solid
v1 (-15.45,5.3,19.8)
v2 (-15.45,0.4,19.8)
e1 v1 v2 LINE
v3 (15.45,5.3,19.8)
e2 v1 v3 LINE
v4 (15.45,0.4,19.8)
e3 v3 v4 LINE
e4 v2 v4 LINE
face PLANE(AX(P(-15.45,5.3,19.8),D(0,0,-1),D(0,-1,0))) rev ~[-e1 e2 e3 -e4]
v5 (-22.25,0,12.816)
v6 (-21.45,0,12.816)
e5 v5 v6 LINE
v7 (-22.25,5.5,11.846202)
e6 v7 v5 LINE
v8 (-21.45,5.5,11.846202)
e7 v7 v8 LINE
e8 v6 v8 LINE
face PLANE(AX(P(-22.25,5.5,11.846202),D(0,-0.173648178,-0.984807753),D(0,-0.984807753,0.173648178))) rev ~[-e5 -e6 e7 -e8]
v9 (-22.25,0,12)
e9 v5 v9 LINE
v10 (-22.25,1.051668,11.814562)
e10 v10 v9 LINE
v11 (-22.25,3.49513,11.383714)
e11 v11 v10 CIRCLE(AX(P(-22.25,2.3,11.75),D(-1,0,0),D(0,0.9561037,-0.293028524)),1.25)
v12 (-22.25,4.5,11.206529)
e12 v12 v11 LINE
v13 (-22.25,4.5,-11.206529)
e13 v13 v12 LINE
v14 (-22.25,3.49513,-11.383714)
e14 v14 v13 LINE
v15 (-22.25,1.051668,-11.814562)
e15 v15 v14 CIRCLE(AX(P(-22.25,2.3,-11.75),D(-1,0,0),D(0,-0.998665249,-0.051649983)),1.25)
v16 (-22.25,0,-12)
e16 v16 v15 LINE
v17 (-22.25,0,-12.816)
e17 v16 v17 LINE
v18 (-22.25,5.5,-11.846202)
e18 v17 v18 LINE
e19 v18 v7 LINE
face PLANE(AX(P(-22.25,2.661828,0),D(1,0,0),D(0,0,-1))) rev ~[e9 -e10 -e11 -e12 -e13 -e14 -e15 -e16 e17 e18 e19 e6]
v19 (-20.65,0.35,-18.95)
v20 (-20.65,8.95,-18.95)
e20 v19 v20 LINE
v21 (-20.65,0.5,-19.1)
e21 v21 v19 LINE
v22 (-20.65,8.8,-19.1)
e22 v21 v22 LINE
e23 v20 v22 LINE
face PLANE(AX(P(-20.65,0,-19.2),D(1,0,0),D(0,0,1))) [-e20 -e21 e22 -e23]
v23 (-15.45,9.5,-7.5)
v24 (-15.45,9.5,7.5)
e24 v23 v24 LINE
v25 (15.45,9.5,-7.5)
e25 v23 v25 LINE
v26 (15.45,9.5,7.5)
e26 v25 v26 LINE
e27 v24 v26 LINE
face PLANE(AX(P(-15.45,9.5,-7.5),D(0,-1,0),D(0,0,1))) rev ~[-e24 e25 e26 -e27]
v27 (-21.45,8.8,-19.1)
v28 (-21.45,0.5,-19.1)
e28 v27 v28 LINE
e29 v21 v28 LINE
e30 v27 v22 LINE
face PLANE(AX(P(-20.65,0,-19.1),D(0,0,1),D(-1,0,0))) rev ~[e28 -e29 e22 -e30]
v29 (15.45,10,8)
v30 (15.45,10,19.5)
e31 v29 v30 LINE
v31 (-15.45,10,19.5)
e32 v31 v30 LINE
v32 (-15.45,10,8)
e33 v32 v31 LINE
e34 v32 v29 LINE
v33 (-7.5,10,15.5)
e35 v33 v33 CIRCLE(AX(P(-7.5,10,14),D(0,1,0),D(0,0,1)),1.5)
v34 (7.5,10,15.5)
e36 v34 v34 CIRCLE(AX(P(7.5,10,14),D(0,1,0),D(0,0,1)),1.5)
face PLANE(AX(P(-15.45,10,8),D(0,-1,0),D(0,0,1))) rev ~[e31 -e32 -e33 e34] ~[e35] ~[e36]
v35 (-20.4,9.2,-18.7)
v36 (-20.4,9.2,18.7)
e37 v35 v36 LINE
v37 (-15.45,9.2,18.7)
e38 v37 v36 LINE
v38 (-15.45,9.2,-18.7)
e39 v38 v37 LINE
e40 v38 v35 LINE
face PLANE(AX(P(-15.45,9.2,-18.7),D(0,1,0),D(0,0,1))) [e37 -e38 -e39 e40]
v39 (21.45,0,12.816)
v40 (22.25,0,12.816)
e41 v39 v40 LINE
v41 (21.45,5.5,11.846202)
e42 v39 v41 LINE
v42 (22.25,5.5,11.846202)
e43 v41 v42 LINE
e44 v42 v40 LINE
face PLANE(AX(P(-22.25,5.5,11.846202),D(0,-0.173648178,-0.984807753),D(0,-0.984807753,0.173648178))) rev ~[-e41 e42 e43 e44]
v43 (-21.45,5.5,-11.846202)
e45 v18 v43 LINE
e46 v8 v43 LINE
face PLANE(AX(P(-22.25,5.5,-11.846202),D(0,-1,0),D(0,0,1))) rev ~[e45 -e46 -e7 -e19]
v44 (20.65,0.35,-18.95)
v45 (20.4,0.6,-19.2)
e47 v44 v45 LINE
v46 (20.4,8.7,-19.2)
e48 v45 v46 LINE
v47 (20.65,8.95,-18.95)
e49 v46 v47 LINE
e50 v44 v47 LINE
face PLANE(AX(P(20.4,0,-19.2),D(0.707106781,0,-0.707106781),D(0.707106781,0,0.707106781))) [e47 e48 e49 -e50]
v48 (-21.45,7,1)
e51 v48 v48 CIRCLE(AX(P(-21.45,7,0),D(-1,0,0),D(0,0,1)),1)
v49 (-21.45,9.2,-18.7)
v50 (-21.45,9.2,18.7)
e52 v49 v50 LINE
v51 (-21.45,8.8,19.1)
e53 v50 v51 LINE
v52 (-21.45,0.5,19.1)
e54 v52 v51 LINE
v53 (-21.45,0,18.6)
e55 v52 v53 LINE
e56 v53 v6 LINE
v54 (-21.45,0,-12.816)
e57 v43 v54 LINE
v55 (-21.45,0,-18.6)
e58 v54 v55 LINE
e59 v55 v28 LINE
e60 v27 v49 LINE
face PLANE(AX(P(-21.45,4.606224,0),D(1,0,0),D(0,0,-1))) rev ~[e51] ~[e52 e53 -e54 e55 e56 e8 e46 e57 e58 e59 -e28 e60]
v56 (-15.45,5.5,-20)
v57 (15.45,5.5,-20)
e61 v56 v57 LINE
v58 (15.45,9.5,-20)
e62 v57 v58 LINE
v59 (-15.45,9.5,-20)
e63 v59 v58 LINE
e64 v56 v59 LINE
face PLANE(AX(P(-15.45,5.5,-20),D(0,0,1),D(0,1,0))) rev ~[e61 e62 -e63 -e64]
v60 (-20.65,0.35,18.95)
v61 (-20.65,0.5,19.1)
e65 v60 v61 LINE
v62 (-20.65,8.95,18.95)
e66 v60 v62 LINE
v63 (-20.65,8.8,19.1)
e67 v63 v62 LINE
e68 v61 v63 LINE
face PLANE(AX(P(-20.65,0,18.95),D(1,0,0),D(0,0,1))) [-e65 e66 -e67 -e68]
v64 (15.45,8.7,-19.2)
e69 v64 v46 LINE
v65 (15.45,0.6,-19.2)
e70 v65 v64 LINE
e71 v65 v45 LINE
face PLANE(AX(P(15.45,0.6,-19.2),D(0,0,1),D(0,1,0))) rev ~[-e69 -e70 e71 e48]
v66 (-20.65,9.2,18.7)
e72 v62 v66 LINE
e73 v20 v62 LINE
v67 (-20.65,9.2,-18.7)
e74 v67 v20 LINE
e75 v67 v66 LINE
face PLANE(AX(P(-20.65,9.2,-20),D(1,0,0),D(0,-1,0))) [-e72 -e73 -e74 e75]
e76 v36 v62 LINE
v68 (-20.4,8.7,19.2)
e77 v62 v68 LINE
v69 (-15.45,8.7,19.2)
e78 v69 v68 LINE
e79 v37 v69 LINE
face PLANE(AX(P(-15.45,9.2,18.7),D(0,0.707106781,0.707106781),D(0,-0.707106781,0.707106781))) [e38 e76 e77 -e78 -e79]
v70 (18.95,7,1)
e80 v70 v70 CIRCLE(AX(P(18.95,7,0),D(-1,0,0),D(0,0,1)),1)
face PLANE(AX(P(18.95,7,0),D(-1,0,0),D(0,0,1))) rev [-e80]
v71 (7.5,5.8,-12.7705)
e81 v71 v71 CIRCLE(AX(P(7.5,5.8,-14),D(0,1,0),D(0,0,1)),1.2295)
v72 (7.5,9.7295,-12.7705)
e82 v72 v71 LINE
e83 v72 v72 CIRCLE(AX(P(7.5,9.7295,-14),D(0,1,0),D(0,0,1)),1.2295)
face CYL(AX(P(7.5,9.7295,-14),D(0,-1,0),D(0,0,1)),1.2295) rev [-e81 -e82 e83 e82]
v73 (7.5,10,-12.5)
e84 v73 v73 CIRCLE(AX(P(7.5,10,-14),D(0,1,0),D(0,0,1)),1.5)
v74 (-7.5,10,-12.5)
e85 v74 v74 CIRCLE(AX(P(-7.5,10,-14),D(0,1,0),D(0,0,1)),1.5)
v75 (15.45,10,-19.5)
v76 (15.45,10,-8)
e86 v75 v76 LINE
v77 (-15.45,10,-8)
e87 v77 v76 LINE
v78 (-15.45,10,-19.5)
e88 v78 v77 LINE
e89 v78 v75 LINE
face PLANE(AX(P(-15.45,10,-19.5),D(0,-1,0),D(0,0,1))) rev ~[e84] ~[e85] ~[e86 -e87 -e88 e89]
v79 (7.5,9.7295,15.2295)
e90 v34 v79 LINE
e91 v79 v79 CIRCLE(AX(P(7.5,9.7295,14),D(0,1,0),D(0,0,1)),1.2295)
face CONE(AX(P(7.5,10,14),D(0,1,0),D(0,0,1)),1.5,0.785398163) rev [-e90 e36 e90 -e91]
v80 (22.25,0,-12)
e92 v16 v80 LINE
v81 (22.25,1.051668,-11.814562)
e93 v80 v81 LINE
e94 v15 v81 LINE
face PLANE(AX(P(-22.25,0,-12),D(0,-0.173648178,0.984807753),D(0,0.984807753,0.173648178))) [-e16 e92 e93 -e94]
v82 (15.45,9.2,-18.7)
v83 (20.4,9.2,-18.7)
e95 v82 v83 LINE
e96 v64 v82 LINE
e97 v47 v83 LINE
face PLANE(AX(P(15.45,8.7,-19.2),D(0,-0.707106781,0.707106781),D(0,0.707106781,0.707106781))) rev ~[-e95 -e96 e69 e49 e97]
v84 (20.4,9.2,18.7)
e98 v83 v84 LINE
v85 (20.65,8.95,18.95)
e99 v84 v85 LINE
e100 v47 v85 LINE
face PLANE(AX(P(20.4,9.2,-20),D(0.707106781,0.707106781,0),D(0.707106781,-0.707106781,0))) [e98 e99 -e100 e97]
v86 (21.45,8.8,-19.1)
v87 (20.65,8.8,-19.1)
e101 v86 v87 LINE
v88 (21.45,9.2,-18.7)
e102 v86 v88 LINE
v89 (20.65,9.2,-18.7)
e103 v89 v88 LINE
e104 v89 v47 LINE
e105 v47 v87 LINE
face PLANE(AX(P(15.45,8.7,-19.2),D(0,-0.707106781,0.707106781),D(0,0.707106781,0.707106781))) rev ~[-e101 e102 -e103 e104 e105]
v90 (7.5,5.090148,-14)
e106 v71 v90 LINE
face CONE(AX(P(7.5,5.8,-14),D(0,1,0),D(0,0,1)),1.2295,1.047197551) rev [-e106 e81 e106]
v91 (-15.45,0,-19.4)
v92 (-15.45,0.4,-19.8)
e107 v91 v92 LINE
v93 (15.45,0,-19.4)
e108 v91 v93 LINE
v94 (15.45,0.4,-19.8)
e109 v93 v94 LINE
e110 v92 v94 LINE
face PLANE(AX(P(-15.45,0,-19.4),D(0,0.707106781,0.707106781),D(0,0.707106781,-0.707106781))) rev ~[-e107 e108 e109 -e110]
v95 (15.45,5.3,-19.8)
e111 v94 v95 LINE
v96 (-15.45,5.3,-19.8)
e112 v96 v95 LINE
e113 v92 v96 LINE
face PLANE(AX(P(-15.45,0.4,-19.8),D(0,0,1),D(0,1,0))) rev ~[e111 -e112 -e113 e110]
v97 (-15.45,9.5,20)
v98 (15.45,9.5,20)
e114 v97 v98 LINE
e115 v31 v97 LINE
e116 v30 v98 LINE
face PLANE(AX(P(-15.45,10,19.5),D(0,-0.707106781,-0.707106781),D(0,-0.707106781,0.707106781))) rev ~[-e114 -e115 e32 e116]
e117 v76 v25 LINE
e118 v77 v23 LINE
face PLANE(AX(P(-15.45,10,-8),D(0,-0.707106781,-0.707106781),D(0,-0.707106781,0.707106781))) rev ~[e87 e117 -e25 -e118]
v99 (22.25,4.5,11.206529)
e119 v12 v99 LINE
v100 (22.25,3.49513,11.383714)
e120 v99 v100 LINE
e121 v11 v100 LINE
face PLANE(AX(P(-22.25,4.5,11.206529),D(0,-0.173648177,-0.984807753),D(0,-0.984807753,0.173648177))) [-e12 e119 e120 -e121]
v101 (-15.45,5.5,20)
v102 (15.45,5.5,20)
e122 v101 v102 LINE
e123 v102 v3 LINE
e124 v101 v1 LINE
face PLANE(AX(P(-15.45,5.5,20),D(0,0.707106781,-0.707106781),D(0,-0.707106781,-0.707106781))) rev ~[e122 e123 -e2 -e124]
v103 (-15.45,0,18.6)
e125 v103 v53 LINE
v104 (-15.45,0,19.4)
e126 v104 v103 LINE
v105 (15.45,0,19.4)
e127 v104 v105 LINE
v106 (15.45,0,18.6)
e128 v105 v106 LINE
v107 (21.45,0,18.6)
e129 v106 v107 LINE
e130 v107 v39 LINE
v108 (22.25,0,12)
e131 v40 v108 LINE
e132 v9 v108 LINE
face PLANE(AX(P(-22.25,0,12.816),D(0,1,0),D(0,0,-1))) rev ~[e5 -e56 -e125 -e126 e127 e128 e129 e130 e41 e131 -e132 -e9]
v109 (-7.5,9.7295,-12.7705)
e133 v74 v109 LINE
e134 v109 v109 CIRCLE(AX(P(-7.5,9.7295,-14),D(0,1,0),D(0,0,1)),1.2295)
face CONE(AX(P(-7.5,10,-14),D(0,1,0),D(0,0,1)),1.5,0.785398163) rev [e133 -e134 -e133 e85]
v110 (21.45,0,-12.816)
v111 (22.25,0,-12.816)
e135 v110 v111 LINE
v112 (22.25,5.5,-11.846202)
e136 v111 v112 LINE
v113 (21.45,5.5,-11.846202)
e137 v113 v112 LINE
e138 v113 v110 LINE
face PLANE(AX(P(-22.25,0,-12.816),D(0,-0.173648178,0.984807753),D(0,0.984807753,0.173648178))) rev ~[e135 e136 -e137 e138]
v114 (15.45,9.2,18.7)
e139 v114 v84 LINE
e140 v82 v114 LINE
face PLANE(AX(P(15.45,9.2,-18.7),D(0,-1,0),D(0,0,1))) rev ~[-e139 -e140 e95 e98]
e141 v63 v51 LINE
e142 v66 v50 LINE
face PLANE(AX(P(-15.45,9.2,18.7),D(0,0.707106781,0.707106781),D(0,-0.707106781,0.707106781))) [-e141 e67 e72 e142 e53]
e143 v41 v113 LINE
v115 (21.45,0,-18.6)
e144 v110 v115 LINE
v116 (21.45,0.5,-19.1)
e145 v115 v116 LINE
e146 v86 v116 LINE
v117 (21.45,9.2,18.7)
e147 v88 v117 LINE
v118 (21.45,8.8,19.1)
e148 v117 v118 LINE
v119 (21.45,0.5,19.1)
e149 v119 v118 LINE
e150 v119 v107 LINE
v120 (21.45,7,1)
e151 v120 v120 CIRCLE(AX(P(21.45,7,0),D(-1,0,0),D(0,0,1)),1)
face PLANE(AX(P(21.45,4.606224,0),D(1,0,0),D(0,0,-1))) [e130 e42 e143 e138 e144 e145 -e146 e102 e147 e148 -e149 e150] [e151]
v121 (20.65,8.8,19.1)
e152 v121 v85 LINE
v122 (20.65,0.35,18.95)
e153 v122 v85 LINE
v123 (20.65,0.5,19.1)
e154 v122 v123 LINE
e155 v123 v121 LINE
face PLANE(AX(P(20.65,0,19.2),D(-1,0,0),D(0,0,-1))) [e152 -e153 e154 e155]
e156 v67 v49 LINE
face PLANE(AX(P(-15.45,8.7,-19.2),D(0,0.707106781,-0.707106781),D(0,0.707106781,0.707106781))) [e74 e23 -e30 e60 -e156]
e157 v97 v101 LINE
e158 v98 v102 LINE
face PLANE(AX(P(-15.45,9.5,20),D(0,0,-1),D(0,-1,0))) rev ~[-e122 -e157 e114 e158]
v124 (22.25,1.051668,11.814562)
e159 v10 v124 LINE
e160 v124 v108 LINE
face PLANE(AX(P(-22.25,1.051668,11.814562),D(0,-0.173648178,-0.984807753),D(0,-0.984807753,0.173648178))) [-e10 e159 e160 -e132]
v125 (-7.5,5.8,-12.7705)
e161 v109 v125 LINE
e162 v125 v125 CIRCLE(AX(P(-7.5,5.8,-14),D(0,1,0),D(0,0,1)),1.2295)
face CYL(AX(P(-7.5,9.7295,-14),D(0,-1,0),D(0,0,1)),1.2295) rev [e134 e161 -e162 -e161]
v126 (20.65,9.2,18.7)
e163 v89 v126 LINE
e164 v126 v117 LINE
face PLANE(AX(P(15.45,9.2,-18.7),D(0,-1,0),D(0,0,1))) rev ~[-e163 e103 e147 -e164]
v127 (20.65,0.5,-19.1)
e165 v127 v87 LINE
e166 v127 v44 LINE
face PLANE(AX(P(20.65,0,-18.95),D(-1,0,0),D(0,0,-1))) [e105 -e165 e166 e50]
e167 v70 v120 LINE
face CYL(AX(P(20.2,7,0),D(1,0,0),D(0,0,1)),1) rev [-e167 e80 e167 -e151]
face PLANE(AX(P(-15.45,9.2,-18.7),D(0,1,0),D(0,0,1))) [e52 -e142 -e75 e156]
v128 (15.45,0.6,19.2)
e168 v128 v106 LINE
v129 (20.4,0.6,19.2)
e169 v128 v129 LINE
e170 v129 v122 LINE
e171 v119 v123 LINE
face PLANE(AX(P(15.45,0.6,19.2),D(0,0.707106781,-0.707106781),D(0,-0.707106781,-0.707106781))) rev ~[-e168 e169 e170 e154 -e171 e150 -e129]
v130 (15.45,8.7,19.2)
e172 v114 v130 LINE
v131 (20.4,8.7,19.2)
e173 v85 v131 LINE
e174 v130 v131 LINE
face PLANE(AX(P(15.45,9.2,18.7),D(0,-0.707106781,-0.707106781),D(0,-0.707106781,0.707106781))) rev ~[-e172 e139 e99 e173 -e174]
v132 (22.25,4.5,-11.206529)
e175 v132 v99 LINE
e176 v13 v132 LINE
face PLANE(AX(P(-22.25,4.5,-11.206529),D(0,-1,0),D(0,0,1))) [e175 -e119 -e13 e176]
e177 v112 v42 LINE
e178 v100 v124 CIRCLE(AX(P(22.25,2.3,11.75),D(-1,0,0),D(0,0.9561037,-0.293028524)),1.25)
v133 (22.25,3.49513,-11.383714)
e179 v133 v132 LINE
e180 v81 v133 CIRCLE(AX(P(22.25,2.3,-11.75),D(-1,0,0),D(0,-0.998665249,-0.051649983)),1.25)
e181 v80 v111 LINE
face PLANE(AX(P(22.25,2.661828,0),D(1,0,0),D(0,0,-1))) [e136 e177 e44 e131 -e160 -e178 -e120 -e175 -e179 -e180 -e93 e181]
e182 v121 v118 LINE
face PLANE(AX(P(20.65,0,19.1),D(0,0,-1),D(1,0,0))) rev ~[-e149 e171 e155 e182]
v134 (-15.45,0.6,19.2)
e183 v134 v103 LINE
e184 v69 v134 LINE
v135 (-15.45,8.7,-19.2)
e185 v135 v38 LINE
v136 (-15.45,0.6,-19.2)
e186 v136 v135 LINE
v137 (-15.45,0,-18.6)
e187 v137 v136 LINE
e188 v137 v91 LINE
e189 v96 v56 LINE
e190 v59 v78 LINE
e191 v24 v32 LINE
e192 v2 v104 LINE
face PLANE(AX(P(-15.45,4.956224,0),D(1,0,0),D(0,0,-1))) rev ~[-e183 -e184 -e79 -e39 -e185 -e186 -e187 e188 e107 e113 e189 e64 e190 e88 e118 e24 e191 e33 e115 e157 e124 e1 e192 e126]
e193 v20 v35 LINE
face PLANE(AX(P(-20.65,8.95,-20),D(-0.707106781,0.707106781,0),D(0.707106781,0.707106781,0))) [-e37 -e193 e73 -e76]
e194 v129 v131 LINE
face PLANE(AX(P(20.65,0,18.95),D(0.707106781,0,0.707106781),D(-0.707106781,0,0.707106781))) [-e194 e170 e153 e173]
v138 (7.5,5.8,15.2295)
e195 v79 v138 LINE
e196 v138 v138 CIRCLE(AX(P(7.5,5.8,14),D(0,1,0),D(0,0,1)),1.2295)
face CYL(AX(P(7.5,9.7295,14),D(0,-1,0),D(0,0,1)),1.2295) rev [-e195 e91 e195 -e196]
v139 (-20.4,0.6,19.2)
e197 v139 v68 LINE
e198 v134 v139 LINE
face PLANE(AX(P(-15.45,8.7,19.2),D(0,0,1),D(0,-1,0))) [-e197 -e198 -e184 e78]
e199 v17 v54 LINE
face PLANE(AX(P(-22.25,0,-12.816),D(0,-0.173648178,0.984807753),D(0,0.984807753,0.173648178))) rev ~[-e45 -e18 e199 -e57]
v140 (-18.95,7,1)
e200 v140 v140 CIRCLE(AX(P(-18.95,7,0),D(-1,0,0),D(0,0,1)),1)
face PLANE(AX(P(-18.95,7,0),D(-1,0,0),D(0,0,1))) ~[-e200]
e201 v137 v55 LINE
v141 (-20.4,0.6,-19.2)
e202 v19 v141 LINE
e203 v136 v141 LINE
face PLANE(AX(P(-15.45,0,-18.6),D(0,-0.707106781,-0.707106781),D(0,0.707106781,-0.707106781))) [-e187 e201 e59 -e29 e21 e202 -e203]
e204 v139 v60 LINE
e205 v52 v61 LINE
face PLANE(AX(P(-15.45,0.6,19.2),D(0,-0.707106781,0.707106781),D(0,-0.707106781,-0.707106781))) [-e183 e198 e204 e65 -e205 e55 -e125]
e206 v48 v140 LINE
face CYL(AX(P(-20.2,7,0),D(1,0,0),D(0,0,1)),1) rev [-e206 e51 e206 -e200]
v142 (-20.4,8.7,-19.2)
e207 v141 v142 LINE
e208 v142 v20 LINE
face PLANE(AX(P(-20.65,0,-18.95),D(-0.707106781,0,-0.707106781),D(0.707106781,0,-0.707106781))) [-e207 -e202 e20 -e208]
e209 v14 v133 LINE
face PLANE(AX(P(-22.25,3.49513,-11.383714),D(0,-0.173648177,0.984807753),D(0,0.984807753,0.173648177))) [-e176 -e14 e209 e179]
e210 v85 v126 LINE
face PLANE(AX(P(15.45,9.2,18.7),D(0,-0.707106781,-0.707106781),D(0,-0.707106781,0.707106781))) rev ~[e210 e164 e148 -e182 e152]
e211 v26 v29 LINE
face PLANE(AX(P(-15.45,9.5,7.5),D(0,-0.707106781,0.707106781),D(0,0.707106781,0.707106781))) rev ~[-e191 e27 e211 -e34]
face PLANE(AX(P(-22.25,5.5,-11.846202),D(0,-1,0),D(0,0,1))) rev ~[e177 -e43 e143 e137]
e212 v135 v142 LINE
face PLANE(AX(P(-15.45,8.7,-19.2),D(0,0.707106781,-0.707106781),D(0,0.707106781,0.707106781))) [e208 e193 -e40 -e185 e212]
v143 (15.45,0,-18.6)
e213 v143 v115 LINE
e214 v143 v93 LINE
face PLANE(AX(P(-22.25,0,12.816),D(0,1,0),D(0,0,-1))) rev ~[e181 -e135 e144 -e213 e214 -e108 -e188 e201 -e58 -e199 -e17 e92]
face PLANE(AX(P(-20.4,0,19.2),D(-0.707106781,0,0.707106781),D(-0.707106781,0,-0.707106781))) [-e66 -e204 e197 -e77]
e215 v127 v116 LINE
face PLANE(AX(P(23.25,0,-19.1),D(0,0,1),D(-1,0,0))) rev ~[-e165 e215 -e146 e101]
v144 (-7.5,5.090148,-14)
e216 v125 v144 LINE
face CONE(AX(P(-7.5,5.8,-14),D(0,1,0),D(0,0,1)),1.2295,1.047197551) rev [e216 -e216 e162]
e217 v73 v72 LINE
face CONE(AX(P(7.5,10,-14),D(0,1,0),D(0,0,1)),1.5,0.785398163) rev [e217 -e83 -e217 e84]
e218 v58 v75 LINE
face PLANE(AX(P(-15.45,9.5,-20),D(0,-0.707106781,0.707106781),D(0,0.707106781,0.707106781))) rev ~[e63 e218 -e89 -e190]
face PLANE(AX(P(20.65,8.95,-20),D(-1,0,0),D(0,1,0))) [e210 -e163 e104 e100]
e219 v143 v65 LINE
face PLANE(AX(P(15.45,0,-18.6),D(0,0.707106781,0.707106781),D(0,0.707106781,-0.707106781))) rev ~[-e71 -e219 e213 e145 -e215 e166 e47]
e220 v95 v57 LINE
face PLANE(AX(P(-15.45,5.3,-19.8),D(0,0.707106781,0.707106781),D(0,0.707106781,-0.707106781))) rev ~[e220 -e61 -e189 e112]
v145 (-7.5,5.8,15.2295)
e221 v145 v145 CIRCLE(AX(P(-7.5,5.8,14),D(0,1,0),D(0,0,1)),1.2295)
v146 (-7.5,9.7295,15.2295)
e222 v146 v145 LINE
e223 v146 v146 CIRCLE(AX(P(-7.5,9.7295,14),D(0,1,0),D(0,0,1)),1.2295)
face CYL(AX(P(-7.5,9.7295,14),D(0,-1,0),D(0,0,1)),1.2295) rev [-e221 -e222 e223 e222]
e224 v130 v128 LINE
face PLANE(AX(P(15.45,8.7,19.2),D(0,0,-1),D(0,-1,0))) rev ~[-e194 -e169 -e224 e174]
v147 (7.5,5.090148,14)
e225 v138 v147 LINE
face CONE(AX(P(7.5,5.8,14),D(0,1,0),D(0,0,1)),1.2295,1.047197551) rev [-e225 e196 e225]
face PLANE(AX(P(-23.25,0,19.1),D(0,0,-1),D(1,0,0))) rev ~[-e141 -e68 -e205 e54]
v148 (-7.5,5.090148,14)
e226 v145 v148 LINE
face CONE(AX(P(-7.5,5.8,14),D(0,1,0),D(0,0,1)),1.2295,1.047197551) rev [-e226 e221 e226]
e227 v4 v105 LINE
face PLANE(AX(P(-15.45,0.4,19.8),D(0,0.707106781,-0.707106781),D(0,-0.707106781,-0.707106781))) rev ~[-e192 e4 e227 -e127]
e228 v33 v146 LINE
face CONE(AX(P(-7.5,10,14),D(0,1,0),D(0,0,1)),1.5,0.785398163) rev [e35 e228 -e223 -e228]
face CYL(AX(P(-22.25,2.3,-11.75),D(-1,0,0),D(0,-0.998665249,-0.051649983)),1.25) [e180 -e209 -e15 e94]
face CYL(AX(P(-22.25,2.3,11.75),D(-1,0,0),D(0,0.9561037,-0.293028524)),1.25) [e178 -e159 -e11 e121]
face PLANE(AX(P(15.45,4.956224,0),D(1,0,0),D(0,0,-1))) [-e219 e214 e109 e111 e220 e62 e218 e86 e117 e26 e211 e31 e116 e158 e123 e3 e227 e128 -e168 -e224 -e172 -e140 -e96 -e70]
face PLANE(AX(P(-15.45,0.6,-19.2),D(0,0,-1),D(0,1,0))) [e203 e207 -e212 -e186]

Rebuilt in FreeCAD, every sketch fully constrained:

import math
import FreeCAD as App
import Part
import Sketcher

V = App.Vector
Q = App.Units.Quantity


def add_polygon(sketch, points):
    """Adds a closed chain of lines whose ends are joined by coincident constraints."""
    first, n = sketch.GeometryCount, len(points)
    for a, b in zip(points, points[1:] + points[:1]):
        sketch.addGeometry(Part.LineSegment(App.Vector(*a, 0), App.Vector(*b, 0)), False)
    for i in range(n):
        sketch.addConstraint(Sketcher.Constraint("Coincident", first + i, 2, first + (i + 1) % n, 1))

doc = App.newDocument("Part")
params = doc.addObject("Spreadsheet::Sheet", "Params")
for row, (alias, value) in enumerate([
    ("sketch1_width", "4 mm"),
    ("sketch1_height", "15 mm"),
    ("sketch1_width2", "4.9 mm"),
    ("sketch1_height2", "38.8 mm"),
    ("sketch1_height3", "11.5 mm"),
    ("pad1_length", "15.45 mm"),
    ("pad1_length2", "15.45 mm"),
    ("sketch2_width", "8.1 mm"),
    ("sketch2_height", "37.2 mm"),
    ("sketch2_height2", "37.4 mm"),
    ("pad2_length", "6 mm"),
    ("sketch3_width", "8.1 mm"),
    ("sketch3_height", "37.2 mm"),
    ("sketch3_height2", "37.4 mm"),
    ("pad3_length", "6 mm"),
    ("pad4_length", "22.25 mm"),
    ("pad4_length2", "22.25 mm"),
    ("sketch5_height", "24 mm"),
    ("sketch5_radius", "1.25 mm"),
    ("sketch6_width", "1.5 mm"),
    ("groove_angle", "360 deg"),
    ("sketch7_width", "1.5 mm"),
    ("groove2_angle", "360 deg"),
    ("sketch8_width", "1.5 mm"),
    ("groove3_angle", "360 deg"),
    ("sketch9_width", "1.5 mm"),
    ("groove4_angle", "360 deg"),
    ("sketch10_height", "44 mm"),
    ("sketch10_width", "48.5 mm"),
    ("sketch10_width2", "2.6 mm"),
    ("sketch10_width3", "41.3 mm"),
    ("sketch10_height2", "38.2 mm"),
    ("pocket2_length", "11 mm"),
    ("sketch11_width", "0.25 mm"),
    ("sketch12_width", "0.25 mm"),
    ("sketch13_width", "0.25 mm"),
    ("pocket5_length", "10 mm"),
    ("sketch14_width", "0.25 mm"),
    ("pocket6_length", "10 mm"),
    ("sketch15_width", "0.25 mm"),
    ("pocket7_length", "10 mm"),
    ("sketch16_width", "0.25 mm"),
    ("pocket8_length", "10 mm"),
    ("sketch17_height", "1 mm"),
    ("sketch17_width", "2.5 mm"),
    ("groove5_angle", "360 deg"),
    ("sketch18_height", "1 mm"),
    ("sketch18_width", "2.5 mm"),
    ("groove6_angle", "360 deg"),
], start=1):
    params.set(f"A{row}", alias)
    params.set(f"B{row}", "=" + value)
    params.setAlias(f"B{row}", alias)

body = doc.addObject("PartDesign::Body", "Body")

sketch1 = body.newObject("Sketcher::SketchObject", "Sketch")
sketch1.AttachmentSupport = (doc.getObject("YZ_Plane"), [""])
sketch1.MapMode = "FlatFace"
add_polygon(sketch1, [(9.5, 20), (5.5, 20), (5.3, 19.8), (0.4, 19.8), (0, 19.4), (0, -19.4), (0.4, -19.8), (5.3, -19.8), (5.5, -20), (9.5, -20), (10, -19.5), (10, -8), (9.5, -7.5), (9.5, 7.5), (10, 8), (10, 19.5)])
sketch1.addConstraint([
    Sketcher.Constraint("Horizontal", 0),
    Sketcher.Constraint("Horizontal", 2),
    Sketcher.Constraint("Vertical", 4),
    Sketcher.Constraint("Horizontal", 6),
    Sketcher.Constraint("Horizontal", 8),
    Sketcher.Constraint("Vertical", 10),
    Sketcher.Constraint("Vertical", 12),
    Sketcher.Constraint("Vertical", 14),
    Sketcher.Constraint("Symmetric", 3, 2, 4, 2, -1, 1),
    Sketcher.Constraint("Symmetric", 2, 2, 5, 2, -1),
    Sketcher.Constraint("Symmetric", 0, 2, 7, 2, -1),
    Sketcher.Constraint("Symmetric", 10, 2, 13, 2, -1),
    Sketcher.Constraint("Parallel", 1, 3),
    Sketcher.Constraint("Perpendicular", 3, 5),
    Sketcher.Constraint("Parallel", 5, 7),
    Sketcher.Constraint("Perpendicular", 7, 9),
    Sketcher.Constraint("Perpendicular", 9, 11),
    Sketcher.Constraint("Perpendicular", 11, 13),
    Sketcher.Constraint("Perpendicular", 13, 15),
    Sketcher.Constraint("Vertical", 8, 2, 11, 2),
    Sketcher.Constraint("Vertical", 12, 2, 15, 2),
    Sketcher.Constraint("DistanceX", 0, 2, 0, 1, 4.0),
    Sketcher.Constraint("DistanceY", 12, 1, 12, 2, 15.0),
    Sketcher.Constraint("DistanceX", 2, 2, 2, 1, 4.9),
    Sketcher.Constraint("DistanceY", 4, 2, 4, 1, 38.8),
    Sketcher.Constraint("DistanceY", 10, 1, 10, 2, 11.5),
    Sketcher.Constraint("DistanceY", -1, 1, 0, 2, 20.0),
    Sketcher.Constraint("DistanceX", -1, 1, 1, 2, 5.3),
])
sketch1.setExpression("Constraints[37]", "Params.sketch1_width")
sketch1.setExpression("Constraints[38]", "Params.sketch1_height")
sketch1.setExpression("Constraints[39]", "Params.sketch1_width2")
sketch1.setExpression("Constraints[40]", "Params.sketch1_height2")
sketch1.setExpression("Constraints[41]", "Params.sketch1_height3")
pad1 = body.newObject("PartDesign::Pad", "Pad")
pad1.Profile = sketch1
pad1.Type = "TwoLengths"
pad1.setExpression("Length", "Params.pad1_length")
pad1.setExpression("Length2", "Params.pad1_length2")

sketch2 = body.newObject("Sketcher::SketchObject", "Sketch001")
sketch2.AttachmentSupport = (doc.getObject("YZ_Plane"), [""])
sketch2.MapMode = "FlatFace"
sketch2.AttachmentOffset = App.Placement(V(0, 0, -15.45), App.Rotation())
add_polygon(sketch2, [(8.7, 19.2), (0.6, 19.2), (0, 18.6), (0, -18.6), (0.6, -19.2), (8.7, -19.2), (9.2, -18.7), (9.2, 18.7)])
sketch2.addConstraint([
    Sketcher.Constraint("Horizontal", 0),
    Sketcher.Constraint("Vertical", 2),
    Sketcher.Constraint("Horizontal", 4),
    Sketcher.Constraint("Vertical", 6),
    Sketcher.Constraint("Symmetric", 1, 2, 2, 2, -1, 1),
    Sketcher.Constraint("Symmetric", 0, 2, 3, 2, -1),
    Sketcher.Constraint("Perpendicular", 1, 3),
    Sketcher.Constraint("Perpendicular", 3, 5),
    Sketcher.Constraint("Perpendicular", 5, 7),
    Sketcher.Constraint("Vertical", 4, 2, 7, 2),
    Sketcher.Constraint("DistanceX", 0, 2, 0, 1, 8.1),
    Sketcher.Constraint("DistanceY", 2, 2, 2, 1, 37.2),
    Sketcher.Constraint("DistanceY", 6, 1, 6, 2, 37.4),
    Sketcher.Constraint("DistanceX", -1, 1, 0, 2, 0.6),
])
sketch2.setExpression("Constraints[18]", "Params.sketch2_width")
sketch2.setExpression("Constraints[19]", "Params.sketch2_height")
sketch2.setExpression("Constraints[20]", "Params.sketch2_height2")
pad2 = body.newObject("PartDesign::Pad", "Pad001")
pad2.Profile = sketch2
pad2.setExpression("Length", "Params.pad2_length")
pad2.Reversed = True

sketch3 = body.newObject("Sketcher::SketchObject", "Sketch002")
sketch3.AttachmentSupport = (doc.getObject("YZ_Plane"), [""])
sketch3.MapMode = "FlatFace"
sketch3.AttachmentOffset = App.Placement(V(0, 0, 15.45), App.Rotation())
add_polygon(sketch3, [(8.7, 19.2), (0.6, 19.2), (0, 18.6), (0, -18.6), (0.6, -19.2), (8.7, -19.2), (9.2, -18.7), (9.2, 18.7)])
sketch3.addConstraint([
    Sketcher.Constraint("Horizontal", 0),
    Sketcher.Constraint("Vertical", 2),
    Sketcher.Constraint("Horizontal", 4),
    Sketcher.Constraint("Vertical", 6),
    Sketcher.Constraint("Symmetric", 1, 2, 2, 2, -1, 1),
    Sketcher.Constraint("Symmetric", 0, 2, 3, 2, -1),
    Sketcher.Constraint("Perpendicular", 1, 3),
    Sketcher.Constraint("Perpendicular", 3, 5),
    Sketcher.Constraint("Perpendicular", 5, 7),
    Sketcher.Constraint("Vertical", 4, 2, 7, 2),
    Sketcher.Constraint("DistanceX", 0, 2, 0, 1, 8.1),
    Sketcher.Constraint("DistanceY", 2, 2, 2, 1, 37.2),
    Sketcher.Constraint("DistanceY", 6, 1, 6, 2, 37.4),
    Sketcher.Constraint("DistanceX", -1, 1, 0, 2, 0.6),
])
sketch3.setExpression("Constraints[18]", "Params.sketch3_width")
sketch3.setExpression("Constraints[19]", "Params.sketch3_height")
sketch3.setExpression("Constraints[20]", "Params.sketch3_height2")
pad3 = body.newObject("PartDesign::Pad", "Pad002")
pad3.Profile = sketch3
pad3.setExpression("Length", "Params.pad3_length")

sketch4 = body.newObject("Sketcher::SketchObject", "Sketch003")
sketch4.AttachmentSupport = (doc.getObject("YZ_Plane"), [""])
sketch4.MapMode = "FlatFace"
add_polygon(sketch4, [(0, 13), (0, -13), (6, -12), (6, 12)])
sketch4.addConstraint([
    Sketcher.Constraint("Vertical", 0),
    Sketcher.Constraint("Vertical", 2),
    Sketcher.Constraint("Symmetric", 0, 2, 3, 2, -1, 1),
    Sketcher.Constraint("Equal", 1, 3),
    Sketcher.Constraint("Angle", 1, Q("10 deg")),
    Sketcher.Constraint("DistanceX", -1, 1, 1, 2, 5.5),
    Sketcher.Constraint("DistanceY", 0, 2, 0, 1, 25.632),
])
pad4 = body.newObject("PartDesign::Pad", "Pad003")
pad4.Profile = sketch4
pad4.Type = "TwoLengths"
pad4.setExpression("Length", "Params.pad4_length")
pad4.setExpression("Length2", "Params.pad4_length2")

sketch5 = body.newObject("Sketcher::SketchObject", "Sketch004")
sketch5.AttachmentSupport = (doc.getObject("YZ_Plane"), [""])
sketch5.MapMode = "FlatFace"
sketch5.addGeometry([
    Part.LineSegment(V(0, 12, 0), V(0, -12, 0)),
    Part.LineSegment(V(0, -12, 0), V(1.1, -11.8, 0)),
    Part.ArcOfCircle(Part.Circle(V(2.3, -11.8, 0), V(0, 0, 1), 1.2), math.radians(17), math.radians(183)),
    Part.LineSegment(V(3.5, -11.4, 0), V(4.5, -11.2, 0)),
    Part.LineSegment(V(4.5, -11.2, 0), V(4.5, 11.2, 0)),
    Part.LineSegment(V(4.5, 11.2, 0), V(3.5, 11.4, 0)),
    Part.ArcOfCircle(Part.Circle(V(2.3, 11.8, 0), V(0, 0, 1), 1.2), math.radians(177), math.radians(343)),
    Part.LineSegment(V(1.1, 11.8, 0), V(0, 12, 0)),
], False)
sketch5.addConstraint([
    Sketcher.Constraint("Coincident", 0, 2, 1, 1),
    Sketcher.Constraint("Coincident", 1, 2, 2, 2),
    Sketcher.Constraint("Coincident", 2, 1, 3, 1),
    Sketcher.Constraint("Coincident", 3, 2, 4, 1),
    Sketcher.Constraint("Coincident", 4, 2, 5, 1),
    Sketcher.Constraint("Coincident", 5, 2, 6, 2),
    Sketcher.Constraint("Coincident", 6, 1, 7, 1),
    Sketcher.Constraint("Coincident", 7, 2, 0, 1),
    Sketcher.Constraint("Vertical", 0),
    Sketcher.Constraint("Vertical", 4),
    Sketcher.Constraint("Equal", 2, 6),
    Sketcher.Constraint("Symmetric", 0, 2, 7, 2, -1, 1),
    Sketcher.Constraint("Symmetric", 2, 3, 6, 3, -1),
    Sketcher.Constraint("Parallel", 1, 3),
    Sketcher.Constraint("Parallel", 5, 7),
    Sketcher.Constraint("Vertical", 2, 1, 5, 2),
    Sketcher.Constraint("Vertical", 1, 2, 6, 1),
    Sketcher.Constraint("DistanceY", 0, 2, 0, 1, 24.0),
    Sketcher.Constraint("Angle", 1, Q("10 deg")),
    Sketcher.Constraint("Radius", 2, 1.25),
    Sketcher.Constraint("DistanceX", -1, 1, 2, 3, 2.3),
    Sketcher.Constraint("DistanceX", -1, 1, 3, 2, 4.5),
    Sketcher.Constraint("DistanceY", 2, 3, 6, 3, 23.5),
    Sketcher.Constraint("DistanceY", 4, 1, 4, 2, 22.413057),
])
sketch5.setExpression("Constraints[17]", "Params.sketch5_height")
sketch5.setExpression("Constraints[19]", "Params.sketch5_radius")
pocket1 = body.newObject("PartDesign::Pocket", "Pocket")
pocket1.Profile = sketch5
pocket1.Type = "ThroughAll"
pocket1.Midplane = True

sketch6 = body.newObject("Sketcher::SketchObject", "Sketch005")
sketch6.AttachmentSupport = (doc.getObject("XY_Plane"), [""])
sketch6.MapMode = "FlatFace"
sketch6.AttachmentOffset = App.Placement(V(0, 0, 14), App.Rotation())
add_polygon(sketch6, [(9, 10), (7.5, 10), (7.5, 5.09), (8.73, 5.8), (8.73, 9.73)])
sketch6.addGeometry(Part.LineSegment(V(7.5, 5.09, 0), V(7.5, 10, 0)), True)
sketch6.addConstraint([
    Sketcher.Constraint("Horizontal", 0),
    Sketcher.Constraint("Vertical", 1),
    Sketcher.Constraint("Vertical", 3),
    Sketcher.Constraint("Vertical", 5),
    Sketcher.Constraint("Coincident", 5, 1, 1, 2),
    Sketcher.Constraint("Horizontal", 4, 2, 5, 2),
    Sketcher.Constraint("Angle", 2, Q("30 deg")),
    Sketcher.Constraint("Angle", 4, Q("45 deg")),
    Sketcher.Constraint("DistanceX", 0, 2, 0, 1, 1.5),
    Sketcher.Constraint("DistanceY", -1, 1, 0, 2, 10.0),
    Sketcher.Constraint("DistanceX", -1, 1, 4, 2, 9.0),
    Sketcher.Constraint("DistanceY", -1, 1, 2, 2, 5.8),
    Sketcher.Constraint("DistanceY", 3, 1, 3, 2, 3.9295),
])
sketch6.setExpression("Constraints[13]", "Params.sketch6_width")
groove = body.newObject("PartDesign::Groove", "Groove")
groove.Profile = sketch6
groove.ReferenceAxis = (sketch6, ["Axis0"])
groove.setExpression("Angle", "Params.groove_angle")

sketch7 = body.newObject("Sketcher::SketchObject", "Sketch006")
sketch7.AttachmentSupport = (doc.getObject("XY_Plane"), [""])
sketch7.MapMode = "FlatFace"
sketch7.AttachmentOffset = App.Placement(V(0, 0, -14), App.Rotation())
add_polygon(sketch7, [(-6, 10), (-7.5, 10), (-7.5, 5.09), (-6.27, 5.8), (-6.27, 9.73)])
sketch7.addGeometry(Part.LineSegment(V(-7.5, 5.09, 0), V(-7.5, 10, 0)), True)
sketch7.addConstraint([
    Sketcher.Constraint("Horizontal", 0),
    Sketcher.Constraint("Vertical", 1),
    Sketcher.Constraint("Vertical", 3),
    Sketcher.Constraint("Vertical", 5),
    Sketcher.Constraint("Coincident", 5, 1, 1, 2),
    Sketcher.Constraint("Horizontal", 4, 2, 5, 2),
    Sketcher.Constraint("Angle", 2, Q("30 deg")),
    Sketcher.Constraint("Angle", 4, Q("45 deg")),
    Sketcher.Constraint("DistanceX", 0, 2, 0, 1, 1.5),
    Sketcher.Constraint("DistanceY", -1, 1, 0, 2, 10.0),
    Sketcher.Constraint("DistanceX", 4, 2, -1, 1, 6.0),
    Sketcher.Constraint("DistanceY", -1, 1, 2, 2, 5.8),
    Sketcher.Constraint("DistanceY", 3, 1, 3, 2, 3.9295),
])
sketch7.setExpression("Constraints[13]", "Params.sketch7_width")
groove2 = body.newObject("PartDesign::Groove", "Groove001")
groove2.Profile = sketch7
groove2.ReferenceAxis = (sketch7, ["Axis0"])
groove2.setExpression("Angle", "Params.groove2_angle")

sketch8 = body.newObject("Sketcher::SketchObject", "Sketch007")
sketch8.AttachmentSupport = (doc.getObject("XY_Plane"), [""])
sketch8.MapMode = "FlatFace"
sketch8.AttachmentOffset = App.Placement(V(0, 0, 14), App.Rotation())
add_polygon(sketch8, [(-6, 10), (-7.5, 10), (-7.5, 5.09), (-6.27, 5.8), (-6.27, 9.73)])
sketch8.addGeometry(Part.LineSegment(V(-7.5, 5.09, 0), V(-7.5, 10, 0)), True)
sketch8.addConstraint([
    Sketcher.Constraint("Horizontal", 0),
    Sketcher.Constraint("Vertical", 1),
    Sketcher.Constraint("Vertical", 3),
    Sketcher.Constraint("Vertical", 5),
    Sketcher.Constraint("Coincident", 5, 1, 1, 2),
    Sketcher.Constraint("Horizontal", 4, 2, 5, 2),
    Sketcher.Constraint("Angle", 2, Q("30 deg")),
    Sketcher.Constraint("Angle", 4, Q("45 deg")),
    Sketcher.Constraint("DistanceX", 0, 2, 0, 1, 1.5),
    Sketcher.Constraint("DistanceY", -1, 1, 0, 2, 10.0),
    Sketcher.Constraint("DistanceX", 4, 2, -1, 1, 6.0),
    Sketcher.Constraint("DistanceY", -1, 1, 2, 2, 5.8),
    Sketcher.Constraint("DistanceY", 3, 1, 3, 2, 3.9295),
])
sketch8.setExpression("Constraints[13]", "Params.sketch8_width")
groove3 = body.newObject("PartDesign::Groove", "Groove002")
groove3.Profile = sketch8
groove3.ReferenceAxis = (sketch8, ["Axis0"])
groove3.setExpression("Angle", "Params.groove3_angle")

sketch9 = body.newObject("Sketcher::SketchObject", "Sketch008")
sketch9.AttachmentSupport = (doc.getObject("XY_Plane"), [""])
sketch9.MapMode = "FlatFace"
sketch9.AttachmentOffset = App.Placement(V(0, 0, -14), App.Rotation())
add_polygon(sketch9, [(9, 10), (7.5, 10), (7.5, 5.09), (8.73, 5.8), (8.73, 9.73)])
sketch9.addGeometry(Part.LineSegment(V(7.5, 5.09, 0), V(7.5, 10, 0)), True)
sketch9.addConstraint([
    Sketcher.Constraint("Horizontal", 0),
    Sketcher.Constraint("Vertical", 1),
    Sketcher.Constraint("Vertical", 3),
    Sketcher.Constraint("Vertical", 5),
    Sketcher.Constraint("Coincident", 5, 1, 1, 2),
    Sketcher.Constraint("Horizontal", 4, 2, 5, 2),
    Sketcher.Constraint("Angle", 2, Q("30 deg")),
    Sketcher.Constraint("Angle", 4, Q("45 deg")),
    Sketcher.Constraint("DistanceX", 0, 2, 0, 1, 1.5),
    Sketcher.Constraint("DistanceY", -1, 1, 0, 2, 10.0),
    Sketcher.Constraint("DistanceX", -1, 1, 4, 2, 9.0),
    Sketcher.Constraint("DistanceY", -1, 1, 2, 2, 5.8),
    Sketcher.Constraint("DistanceY", 3, 1, 3, 2, 3.9295),
])
sketch9.setExpression("Constraints[13]", "Params.sketch9_width")
groove4 = body.newObject("PartDesign::Groove", "Groove003")
groove4.Profile = sketch9
groove4.ReferenceAxis = (sketch9, ["Axis0"])
groove4.setExpression("Angle", "Params.groove4_angle")

sketch10 = body.newObject("Sketcher::SketchObject", "Sketch009")
sketch10.AttachmentSupport = (doc.getObject("XZ_Plane"), [""])
sketch10.MapMode = "FlatFace"
add_polygon(sketch10, [(-24.2, -22), (-24.2, 22), (24.2, 22), (24.2, -22)])
add_polygon(sketch10, [(-23.2, 19.1), (-23.2, -19.1), (-20.6, -19.1), (-20.6, -21), (20.6, -21), (20.6, -19.1), (23.2, -19.1), (23.2, 19.1), (20.6, 19.1), (20.6, 21), (-20.6, 21), (-20.6, 19.1)])
sketch10.addConstraint([
    Sketcher.Constraint("Vertical", 0),
    Sketcher.Constraint("Horizontal", 1),
    Sketcher.Constraint("Vertical", 2),
    Sketcher.Constraint("Horizontal", 3),
    Sketcher.Constraint("Vertical", 4),
    Sketcher.Constraint("Horizontal", 5),
    Sketcher.Constraint("Vertical", 6),
    Sketcher.Constraint("Horizontal", 7),
    Sketcher.Constraint("Vertical", 8),
    Sketcher.Constraint("Horizontal", 9),
    Sketcher.Constraint("Vertical", 10),
    Sketcher.Constraint("Horizontal", 11),
    Sketcher.Constraint("Vertical", 12),
    Sketcher.Constraint("Horizontal", 13),
    Sketcher.Constraint("Vertical", 14),
    Sketcher.Constraint("Horizontal", 15),
    Sketcher.Constraint("Symmetric", 0, 2, 2, 2, -1, 1),
    Sketcher.Constraint("Symmetric", 4, 2, 10, 2, -1, 1),
    Sketcher.Constraint("Symmetric", 6, 2, 12, 2, -1, 1),
    Sketcher.Constraint("Symmetric", 8, 2, 14, 2, -1, 1),
    Sketcher.Constraint("Symmetric", 5, 2, 8, 2, -2),
    Sketcher.Constraint("DistanceY", 0, 1, 0, 2, 44.0),
    Sketcher.Constraint("DistanceX", 1, 1, 1, 2, 48.5),
    Sketcher.Constraint("DistanceX", 5, 1, 5, 2, 2.6),
    Sketcher.Constraint("DistanceX", 7, 1, 7, 2, 41.3),
    Sketcher.Constraint("DistanceY", 4, 2, 4, 1, 38.2),
    Sketcher.Constraint("DistanceY", 6, 2, 6, 1, 1.9),
])
sketch10.setExpression("Constraints[37]", "Params.sketch10_height")
sketch10.setExpression("Constraints[38]", "Params.sketch10_width")
sketch10.setExpression("Constraints[39]", "Params.sketch10_width2")
sketch10.setExpression("Constraints[40]", "Params.sketch10_width3")
sketch10.setExpression("Constraints[41]", "Params.sketch10_height2")
pocket2 = body.newObject("PartDesign::Pocket", "Pocket001")
pocket2.Profile = sketch10
pocket2.setExpression("Length", "Params.pocket2_length")

sketch11 = body.newObject("Sketcher::SketchObject", "Sketch010")
sketch11.AttachmentSupport = (doc.getObject("XY_Plane"), [""])
sketch11.MapMode = "FlatFace"
add_polygon(sketch11, [(-20.65, 9.2), (-20.65, 8.95), (-20.4, 9.2)])
sketch11.addConstraint([
    Sketcher.Constraint("Vertical", 0),
    Sketcher.Constraint("Horizontal", 2),
    Sketcher.Constraint("Equal", 2, 0),
    Sketcher.Constraint("DistanceX", 2, 2, 2, 1, 0.25),
    Sketcher.Constraint("DistanceX", 1, 2, -1, 1, 20.4),
    Sketcher.Constraint("DistanceY", -1, 1, 1, 2, 9.2),
])
sketch11.setExpression("Constraints[6]", "Params.sketch11_width")
pocket3 = body.newObject("PartDesign::Pocket", "Pocket002")
pocket3.Profile = sketch11
pocket3.Type = "ThroughAll"
pocket3.Midplane = True

sketch12 = body.newObject("Sketcher::SketchObject", "Sketch011")
sketch12.AttachmentSupport = (doc.getObject("XY_Plane"), [""])
sketch12.MapMode = "FlatFace"
add_polygon(sketch12, [(20.4, 9.2), (20.65, 8.95), (20.65, 9.2)])
sketch12.addConstraint([
    Sketcher.Constraint("Vertical", 1),
    Sketcher.Constraint("Horizontal", 2),
    Sketcher.Constraint("Equal", 2, 1),
    Sketcher.Constraint("DistanceX", 2, 2, 2, 1, 0.25),
    Sketcher.Constraint("DistanceY", -1, 1, 1, 2, 9.2),
    Sketcher.Constraint("DistanceX", -1, 1, 2, 2, 20.4),
])
sketch12.setExpression("Constraints[6]", "Params.sketch12_width")
pocket4 = body.newObject("PartDesign::Pocket", "Pocket003")
pocket4.Profile = sketch12
pocket4.Type = "ThroughAll"
pocket4.Midplane = True

sketch13 = body.newObject("Sketcher::SketchObject", "Sketch012")
sketch13.AttachmentSupport = (doc.getObject("XZ_Plane"), [""])
sketch13.MapMode = "FlatFace"
add_polygon(sketch13, [(-20.65, -19.2), (-20.65, -18.95), (-20.4, -19.2)])
sketch13.addConstraint([
    Sketcher.Constraint("Vertical", 0),
    Sketcher.Constraint("Horizontal", 2),
    Sketcher.Constraint("Equal", 2, 0),
    Sketcher.Constraint("DistanceX", 2, 2, 2, 1, 0.25),
    Sketcher.Constraint("DistanceX", 1, 2, -1, 1, 20.4),
    Sketcher.Constraint("DistanceY", 1, 2, -1, 1, 19.2),
])
sketch13.setExpression("Constraints[6]", "Params.sketch13_width")
pocket5 = body.newObject("PartDesign::Pocket", "Pocket004")
pocket5.Profile = sketch13
pocket5.setExpression("Length", "Params.pocket5_length")

sketch14 = body.newObject("Sketcher::SketchObject", "Sketch013")
sketch14.AttachmentSupport = (doc.getObject("XZ_Plane"), [""])
sketch14.MapMode = "FlatFace"
add_polygon(sketch14, [(-20.65, 19.2), (-20.4, 19.2), (-20.65, 18.95)])
sketch14.addConstraint([
    Sketcher.Constraint("Horizontal", 0),
    Sketcher.Constraint("Vertical", 2),
    Sketcher.Constraint("Equal", 0, 2),
    Sketcher.Constraint("DistanceX", 0, 1, 0, 2, 0.25),
    Sketcher.Constraint("DistanceX", 0, 2, -1, 1, 20.4),
    Sketcher.Constraint("DistanceY", -1, 1, 0, 2, 19.2),
])
sketch14.setExpression("Constraints[6]", "Params.sketch14_width")
pocket6 = body.newObject("PartDesign::Pocket", "Pocket005")
pocket6.Profile = sketch14
pocket6.setExpression("Length", "Params.pocket6_length")

sketch15 = body.newObject("Sketcher::SketchObject", "Sketch014")
sketch15.AttachmentSupport = (doc.getObject("XZ_Plane"), [""])
sketch15.MapMode = "FlatFace"
add_polygon(sketch15, [(20.4, -19.2), (20.65, -18.95), (20.65, -19.2)])
sketch15.addConstraint([
    Sketcher.Constraint("Vertical", 1),
    Sketcher.Constraint("Horizontal", 2),
    Sketcher.Constraint("Equal", 2, 1),
    Sketcher.Constraint("DistanceX", 2, 2, 2, 1, 0.25),
    Sketcher.Constraint("DistanceY", 1, 2, -1, 1, 19.2),
    Sketcher.Constraint("DistanceX", -1, 1, 2, 2, 20.4),
])
sketch15.setExpression("Constraints[6]", "Params.sketch15_width")
pocket7 = body.newObject("PartDesign::Pocket", "Pocket006")
pocket7.Profile = sketch15
pocket7.setExpression("Length", "Params.pocket7_length")

sketch16 = body.newObject("Sketcher::SketchObject", "Sketch015")
sketch16.AttachmentSupport = (doc.getObject("XZ_Plane"), [""])
sketch16.MapMode = "FlatFace"
add_polygon(sketch16, [(20.4, 19.2), (20.65, 19.2), (20.65, 18.95)])
sketch16.addConstraint([
    Sketcher.Constraint("Horizontal", 0),
    Sketcher.Constraint("Vertical", 1),
    Sketcher.Constraint("Equal", 0, 1),
    Sketcher.Constraint("DistanceX", 0, 1, 0, 2, 0.25),
    Sketcher.Constraint("DistanceY", -1, 1, 0, 2, 19.2),
    Sketcher.Constraint("DistanceX", -1, 1, 2, 2, 20.4),
])
sketch16.setExpression("Constraints[6]", "Params.sketch16_width")
pocket8 = body.newObject("PartDesign::Pocket", "Pocket007")
pocket8.Profile = sketch16
pocket8.setExpression("Length", "Params.pocket8_length")

sketch17 = body.newObject("Sketcher::SketchObject", "Sketch016")
sketch17.AttachmentSupport = (doc.getObject("XY_Plane"), [""])
sketch17.MapMode = "FlatFace"
add_polygon(sketch17, [(-21.4, 8), (-21.4, 7), (-18.9, 7), (-18.9, 8)])
sketch17.addGeometry(Part.LineSegment(V(-18.9, 7, 0), V(-21.4, 7, 0)), True)
sketch17.addConstraint([
    Sketcher.Constraint("Vertical", 0),
    Sketcher.Constraint("Horizontal", 1),
    Sketcher.Constraint("Vertical", 2),
    Sketcher.Constraint("Horizontal", 3),
    Sketcher.Constraint("Horizontal", 4),
    Sketcher.Constraint("Coincident", 4, 1, 1, 2),
    Sketcher.Constraint("Vertical", 3, 2, 4, 2),
    Sketcher.Constraint("DistanceY", 0, 2, 0, 1, 1.0),
    Sketcher.Constraint("DistanceX", 1, 1, 1, 2, 2.5),
    Sketcher.Constraint("DistanceY", -1, 1, 0, 2, 7.0),
    Sketcher.Constraint("DistanceX", 0, 2, -1, 1, 21.45),
])
sketch17.setExpression("Constraints[11]", "Params.sketch17_height")
sketch17.setExpression("Constraints[12]", "Params.sketch17_width")
groove5 = body.newObject("PartDesign::Groove", "Groove004")
groove5.Profile = sketch17
groove5.ReferenceAxis = (sketch17, ["Axis0"])
groove5.setExpression("Angle", "Params.groove5_angle")

sketch18 = body.newObject("Sketcher::SketchObject", "Sketch017")
sketch18.AttachmentSupport = (doc.getObject("XY_Plane"), [""])
sketch18.MapMode = "FlatFace"
add_polygon(sketch18, [(18.9, 8), (18.9, 7), (21.4, 7), (21.4, 8)])
sketch18.addGeometry(Part.LineSegment(V(21.4, 7, 0), V(18.9, 7, 0)), True)
sketch18.addConstraint([
    Sketcher.Constraint("Vertical", 0),
    Sketcher.Constraint("Horizontal", 1),
    Sketcher.Constraint("Vertical", 2),
    Sketcher.Constraint("Horizontal", 3),
    Sketcher.Constraint("Horizontal", 4),
    Sketcher.Constraint("Coincident", 4, 1, 1, 2),
    Sketcher.Constraint("Vertical", 3, 2, 4, 2),
    Sketcher.Constraint("DistanceY", 0, 2, 0, 1, 1.0),
    Sketcher.Constraint("DistanceX", 1, 1, 1, 2, 2.5),
    Sketcher.Constraint("DistanceY", -1, 1, 0, 2, 7.0),
    Sketcher.Constraint("DistanceX", -1, 1, 0, 2, 18.95),
])
sketch18.setExpression("Constraints[11]", "Params.sketch18_height")
sketch18.setExpression("Constraints[12]", "Params.sketch18_width")
groove6 = body.newObject("PartDesign::Groove", "Groove005")
groove6.Profile = sketch18
groove6.ReferenceAxis = (sketch18, ["Axis0"])
groove6.setExpression("Angle", "Params.groove6_angle")

doc.recompute()
